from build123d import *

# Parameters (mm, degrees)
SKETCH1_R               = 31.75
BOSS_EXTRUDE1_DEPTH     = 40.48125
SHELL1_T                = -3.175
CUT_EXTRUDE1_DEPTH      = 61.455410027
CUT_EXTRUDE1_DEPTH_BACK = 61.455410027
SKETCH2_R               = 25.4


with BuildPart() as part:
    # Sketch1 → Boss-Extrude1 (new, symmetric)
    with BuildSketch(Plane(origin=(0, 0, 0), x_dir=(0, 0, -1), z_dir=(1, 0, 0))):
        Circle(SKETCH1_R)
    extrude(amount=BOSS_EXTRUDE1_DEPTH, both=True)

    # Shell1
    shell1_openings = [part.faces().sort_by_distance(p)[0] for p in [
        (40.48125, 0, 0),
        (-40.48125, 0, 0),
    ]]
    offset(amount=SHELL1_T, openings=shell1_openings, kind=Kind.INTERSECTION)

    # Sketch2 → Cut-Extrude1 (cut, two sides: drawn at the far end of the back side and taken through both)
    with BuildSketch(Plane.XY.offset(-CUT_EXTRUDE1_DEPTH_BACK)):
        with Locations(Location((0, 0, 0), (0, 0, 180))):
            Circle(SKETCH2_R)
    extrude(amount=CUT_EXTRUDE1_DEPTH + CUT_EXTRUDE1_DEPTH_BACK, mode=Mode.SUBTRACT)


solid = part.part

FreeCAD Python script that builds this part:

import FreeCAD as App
import Part
import Sketcher
from FreeCAD import Vector
Q = App.Units.Quantity


def faces_at(feature, points):
    """Names of the faces that lie closest to the given points."""
    faces = feature.Shape.Faces
    near = lambda p: min(range(len(faces)), key=lambda i: faces[i].distToShape(Part.Vertex(*p))[0])
    return sorted({f"Face{near(p) + 1}" for p in points})

doc = App.newDocument("Part")
body = doc.addObject("PartDesign::Body", "Body")

# Sketch on YZ plane
sketch1 = body.newObject("Sketcher::SketchObject", "Sketch")
sketch1.AttachmentSupport = (doc.getObject("YZ_Plane"), [""])
sketch1.MapMode = "FlatFace"
sketch1.addGeometry(Part.Circle(Vector(0, 0, 0), Vector(0, 0, 1), 31.75), False)
sketch1.addConstraint(Sketcher.Constraint("Coincident", 0, 3, -1, 1))
sketch1.addConstraint(Sketcher.Constraint("Diameter", 0, Q("2.5 in")))
pad1 = body.newObject("PartDesign::Pad", "Pad")
pad1.Profile = sketch1
pad1.Length = Q("3.1875 in")
pad1.Midplane = True
doc.recompute()

thickness = body.newObject("PartDesign::Thickness", "Thickness")
thickness.Base = (pad1, faces_at(pad1, [(40.481, 0, 0), (-40.481, 0, 0)]))
thickness.Value = Q("0.125 in")
thickness.Reversed = True
thickness.Join = "Intersection"

# Sketch on XY plane
sketch2 = body.newObject("Sketcher::SketchObject", "Sketch001")
sketch2.AttachmentSupport = (doc.getObject("XY_Plane"), [""])
sketch2.MapMode = "FlatFace"
sketch2.addGeometry(Part.Circle(Vector(0, 0, 0), Vector(0, 0, 1), 25.4), False)
sketch2.addConstraint(Sketcher.Constraint("Coincident", 0, 3, -1, 1))
sketch2.addConstraint(Sketcher.Constraint("Diameter", 0, Q("2 in")))
pocket1 = body.newObject("PartDesign::Pocket", "Pocket")
pocket1.Profile = sketch2
pocket1.Type = "ThroughAll"
pocket1.Midplane = True

doc.recompute()
